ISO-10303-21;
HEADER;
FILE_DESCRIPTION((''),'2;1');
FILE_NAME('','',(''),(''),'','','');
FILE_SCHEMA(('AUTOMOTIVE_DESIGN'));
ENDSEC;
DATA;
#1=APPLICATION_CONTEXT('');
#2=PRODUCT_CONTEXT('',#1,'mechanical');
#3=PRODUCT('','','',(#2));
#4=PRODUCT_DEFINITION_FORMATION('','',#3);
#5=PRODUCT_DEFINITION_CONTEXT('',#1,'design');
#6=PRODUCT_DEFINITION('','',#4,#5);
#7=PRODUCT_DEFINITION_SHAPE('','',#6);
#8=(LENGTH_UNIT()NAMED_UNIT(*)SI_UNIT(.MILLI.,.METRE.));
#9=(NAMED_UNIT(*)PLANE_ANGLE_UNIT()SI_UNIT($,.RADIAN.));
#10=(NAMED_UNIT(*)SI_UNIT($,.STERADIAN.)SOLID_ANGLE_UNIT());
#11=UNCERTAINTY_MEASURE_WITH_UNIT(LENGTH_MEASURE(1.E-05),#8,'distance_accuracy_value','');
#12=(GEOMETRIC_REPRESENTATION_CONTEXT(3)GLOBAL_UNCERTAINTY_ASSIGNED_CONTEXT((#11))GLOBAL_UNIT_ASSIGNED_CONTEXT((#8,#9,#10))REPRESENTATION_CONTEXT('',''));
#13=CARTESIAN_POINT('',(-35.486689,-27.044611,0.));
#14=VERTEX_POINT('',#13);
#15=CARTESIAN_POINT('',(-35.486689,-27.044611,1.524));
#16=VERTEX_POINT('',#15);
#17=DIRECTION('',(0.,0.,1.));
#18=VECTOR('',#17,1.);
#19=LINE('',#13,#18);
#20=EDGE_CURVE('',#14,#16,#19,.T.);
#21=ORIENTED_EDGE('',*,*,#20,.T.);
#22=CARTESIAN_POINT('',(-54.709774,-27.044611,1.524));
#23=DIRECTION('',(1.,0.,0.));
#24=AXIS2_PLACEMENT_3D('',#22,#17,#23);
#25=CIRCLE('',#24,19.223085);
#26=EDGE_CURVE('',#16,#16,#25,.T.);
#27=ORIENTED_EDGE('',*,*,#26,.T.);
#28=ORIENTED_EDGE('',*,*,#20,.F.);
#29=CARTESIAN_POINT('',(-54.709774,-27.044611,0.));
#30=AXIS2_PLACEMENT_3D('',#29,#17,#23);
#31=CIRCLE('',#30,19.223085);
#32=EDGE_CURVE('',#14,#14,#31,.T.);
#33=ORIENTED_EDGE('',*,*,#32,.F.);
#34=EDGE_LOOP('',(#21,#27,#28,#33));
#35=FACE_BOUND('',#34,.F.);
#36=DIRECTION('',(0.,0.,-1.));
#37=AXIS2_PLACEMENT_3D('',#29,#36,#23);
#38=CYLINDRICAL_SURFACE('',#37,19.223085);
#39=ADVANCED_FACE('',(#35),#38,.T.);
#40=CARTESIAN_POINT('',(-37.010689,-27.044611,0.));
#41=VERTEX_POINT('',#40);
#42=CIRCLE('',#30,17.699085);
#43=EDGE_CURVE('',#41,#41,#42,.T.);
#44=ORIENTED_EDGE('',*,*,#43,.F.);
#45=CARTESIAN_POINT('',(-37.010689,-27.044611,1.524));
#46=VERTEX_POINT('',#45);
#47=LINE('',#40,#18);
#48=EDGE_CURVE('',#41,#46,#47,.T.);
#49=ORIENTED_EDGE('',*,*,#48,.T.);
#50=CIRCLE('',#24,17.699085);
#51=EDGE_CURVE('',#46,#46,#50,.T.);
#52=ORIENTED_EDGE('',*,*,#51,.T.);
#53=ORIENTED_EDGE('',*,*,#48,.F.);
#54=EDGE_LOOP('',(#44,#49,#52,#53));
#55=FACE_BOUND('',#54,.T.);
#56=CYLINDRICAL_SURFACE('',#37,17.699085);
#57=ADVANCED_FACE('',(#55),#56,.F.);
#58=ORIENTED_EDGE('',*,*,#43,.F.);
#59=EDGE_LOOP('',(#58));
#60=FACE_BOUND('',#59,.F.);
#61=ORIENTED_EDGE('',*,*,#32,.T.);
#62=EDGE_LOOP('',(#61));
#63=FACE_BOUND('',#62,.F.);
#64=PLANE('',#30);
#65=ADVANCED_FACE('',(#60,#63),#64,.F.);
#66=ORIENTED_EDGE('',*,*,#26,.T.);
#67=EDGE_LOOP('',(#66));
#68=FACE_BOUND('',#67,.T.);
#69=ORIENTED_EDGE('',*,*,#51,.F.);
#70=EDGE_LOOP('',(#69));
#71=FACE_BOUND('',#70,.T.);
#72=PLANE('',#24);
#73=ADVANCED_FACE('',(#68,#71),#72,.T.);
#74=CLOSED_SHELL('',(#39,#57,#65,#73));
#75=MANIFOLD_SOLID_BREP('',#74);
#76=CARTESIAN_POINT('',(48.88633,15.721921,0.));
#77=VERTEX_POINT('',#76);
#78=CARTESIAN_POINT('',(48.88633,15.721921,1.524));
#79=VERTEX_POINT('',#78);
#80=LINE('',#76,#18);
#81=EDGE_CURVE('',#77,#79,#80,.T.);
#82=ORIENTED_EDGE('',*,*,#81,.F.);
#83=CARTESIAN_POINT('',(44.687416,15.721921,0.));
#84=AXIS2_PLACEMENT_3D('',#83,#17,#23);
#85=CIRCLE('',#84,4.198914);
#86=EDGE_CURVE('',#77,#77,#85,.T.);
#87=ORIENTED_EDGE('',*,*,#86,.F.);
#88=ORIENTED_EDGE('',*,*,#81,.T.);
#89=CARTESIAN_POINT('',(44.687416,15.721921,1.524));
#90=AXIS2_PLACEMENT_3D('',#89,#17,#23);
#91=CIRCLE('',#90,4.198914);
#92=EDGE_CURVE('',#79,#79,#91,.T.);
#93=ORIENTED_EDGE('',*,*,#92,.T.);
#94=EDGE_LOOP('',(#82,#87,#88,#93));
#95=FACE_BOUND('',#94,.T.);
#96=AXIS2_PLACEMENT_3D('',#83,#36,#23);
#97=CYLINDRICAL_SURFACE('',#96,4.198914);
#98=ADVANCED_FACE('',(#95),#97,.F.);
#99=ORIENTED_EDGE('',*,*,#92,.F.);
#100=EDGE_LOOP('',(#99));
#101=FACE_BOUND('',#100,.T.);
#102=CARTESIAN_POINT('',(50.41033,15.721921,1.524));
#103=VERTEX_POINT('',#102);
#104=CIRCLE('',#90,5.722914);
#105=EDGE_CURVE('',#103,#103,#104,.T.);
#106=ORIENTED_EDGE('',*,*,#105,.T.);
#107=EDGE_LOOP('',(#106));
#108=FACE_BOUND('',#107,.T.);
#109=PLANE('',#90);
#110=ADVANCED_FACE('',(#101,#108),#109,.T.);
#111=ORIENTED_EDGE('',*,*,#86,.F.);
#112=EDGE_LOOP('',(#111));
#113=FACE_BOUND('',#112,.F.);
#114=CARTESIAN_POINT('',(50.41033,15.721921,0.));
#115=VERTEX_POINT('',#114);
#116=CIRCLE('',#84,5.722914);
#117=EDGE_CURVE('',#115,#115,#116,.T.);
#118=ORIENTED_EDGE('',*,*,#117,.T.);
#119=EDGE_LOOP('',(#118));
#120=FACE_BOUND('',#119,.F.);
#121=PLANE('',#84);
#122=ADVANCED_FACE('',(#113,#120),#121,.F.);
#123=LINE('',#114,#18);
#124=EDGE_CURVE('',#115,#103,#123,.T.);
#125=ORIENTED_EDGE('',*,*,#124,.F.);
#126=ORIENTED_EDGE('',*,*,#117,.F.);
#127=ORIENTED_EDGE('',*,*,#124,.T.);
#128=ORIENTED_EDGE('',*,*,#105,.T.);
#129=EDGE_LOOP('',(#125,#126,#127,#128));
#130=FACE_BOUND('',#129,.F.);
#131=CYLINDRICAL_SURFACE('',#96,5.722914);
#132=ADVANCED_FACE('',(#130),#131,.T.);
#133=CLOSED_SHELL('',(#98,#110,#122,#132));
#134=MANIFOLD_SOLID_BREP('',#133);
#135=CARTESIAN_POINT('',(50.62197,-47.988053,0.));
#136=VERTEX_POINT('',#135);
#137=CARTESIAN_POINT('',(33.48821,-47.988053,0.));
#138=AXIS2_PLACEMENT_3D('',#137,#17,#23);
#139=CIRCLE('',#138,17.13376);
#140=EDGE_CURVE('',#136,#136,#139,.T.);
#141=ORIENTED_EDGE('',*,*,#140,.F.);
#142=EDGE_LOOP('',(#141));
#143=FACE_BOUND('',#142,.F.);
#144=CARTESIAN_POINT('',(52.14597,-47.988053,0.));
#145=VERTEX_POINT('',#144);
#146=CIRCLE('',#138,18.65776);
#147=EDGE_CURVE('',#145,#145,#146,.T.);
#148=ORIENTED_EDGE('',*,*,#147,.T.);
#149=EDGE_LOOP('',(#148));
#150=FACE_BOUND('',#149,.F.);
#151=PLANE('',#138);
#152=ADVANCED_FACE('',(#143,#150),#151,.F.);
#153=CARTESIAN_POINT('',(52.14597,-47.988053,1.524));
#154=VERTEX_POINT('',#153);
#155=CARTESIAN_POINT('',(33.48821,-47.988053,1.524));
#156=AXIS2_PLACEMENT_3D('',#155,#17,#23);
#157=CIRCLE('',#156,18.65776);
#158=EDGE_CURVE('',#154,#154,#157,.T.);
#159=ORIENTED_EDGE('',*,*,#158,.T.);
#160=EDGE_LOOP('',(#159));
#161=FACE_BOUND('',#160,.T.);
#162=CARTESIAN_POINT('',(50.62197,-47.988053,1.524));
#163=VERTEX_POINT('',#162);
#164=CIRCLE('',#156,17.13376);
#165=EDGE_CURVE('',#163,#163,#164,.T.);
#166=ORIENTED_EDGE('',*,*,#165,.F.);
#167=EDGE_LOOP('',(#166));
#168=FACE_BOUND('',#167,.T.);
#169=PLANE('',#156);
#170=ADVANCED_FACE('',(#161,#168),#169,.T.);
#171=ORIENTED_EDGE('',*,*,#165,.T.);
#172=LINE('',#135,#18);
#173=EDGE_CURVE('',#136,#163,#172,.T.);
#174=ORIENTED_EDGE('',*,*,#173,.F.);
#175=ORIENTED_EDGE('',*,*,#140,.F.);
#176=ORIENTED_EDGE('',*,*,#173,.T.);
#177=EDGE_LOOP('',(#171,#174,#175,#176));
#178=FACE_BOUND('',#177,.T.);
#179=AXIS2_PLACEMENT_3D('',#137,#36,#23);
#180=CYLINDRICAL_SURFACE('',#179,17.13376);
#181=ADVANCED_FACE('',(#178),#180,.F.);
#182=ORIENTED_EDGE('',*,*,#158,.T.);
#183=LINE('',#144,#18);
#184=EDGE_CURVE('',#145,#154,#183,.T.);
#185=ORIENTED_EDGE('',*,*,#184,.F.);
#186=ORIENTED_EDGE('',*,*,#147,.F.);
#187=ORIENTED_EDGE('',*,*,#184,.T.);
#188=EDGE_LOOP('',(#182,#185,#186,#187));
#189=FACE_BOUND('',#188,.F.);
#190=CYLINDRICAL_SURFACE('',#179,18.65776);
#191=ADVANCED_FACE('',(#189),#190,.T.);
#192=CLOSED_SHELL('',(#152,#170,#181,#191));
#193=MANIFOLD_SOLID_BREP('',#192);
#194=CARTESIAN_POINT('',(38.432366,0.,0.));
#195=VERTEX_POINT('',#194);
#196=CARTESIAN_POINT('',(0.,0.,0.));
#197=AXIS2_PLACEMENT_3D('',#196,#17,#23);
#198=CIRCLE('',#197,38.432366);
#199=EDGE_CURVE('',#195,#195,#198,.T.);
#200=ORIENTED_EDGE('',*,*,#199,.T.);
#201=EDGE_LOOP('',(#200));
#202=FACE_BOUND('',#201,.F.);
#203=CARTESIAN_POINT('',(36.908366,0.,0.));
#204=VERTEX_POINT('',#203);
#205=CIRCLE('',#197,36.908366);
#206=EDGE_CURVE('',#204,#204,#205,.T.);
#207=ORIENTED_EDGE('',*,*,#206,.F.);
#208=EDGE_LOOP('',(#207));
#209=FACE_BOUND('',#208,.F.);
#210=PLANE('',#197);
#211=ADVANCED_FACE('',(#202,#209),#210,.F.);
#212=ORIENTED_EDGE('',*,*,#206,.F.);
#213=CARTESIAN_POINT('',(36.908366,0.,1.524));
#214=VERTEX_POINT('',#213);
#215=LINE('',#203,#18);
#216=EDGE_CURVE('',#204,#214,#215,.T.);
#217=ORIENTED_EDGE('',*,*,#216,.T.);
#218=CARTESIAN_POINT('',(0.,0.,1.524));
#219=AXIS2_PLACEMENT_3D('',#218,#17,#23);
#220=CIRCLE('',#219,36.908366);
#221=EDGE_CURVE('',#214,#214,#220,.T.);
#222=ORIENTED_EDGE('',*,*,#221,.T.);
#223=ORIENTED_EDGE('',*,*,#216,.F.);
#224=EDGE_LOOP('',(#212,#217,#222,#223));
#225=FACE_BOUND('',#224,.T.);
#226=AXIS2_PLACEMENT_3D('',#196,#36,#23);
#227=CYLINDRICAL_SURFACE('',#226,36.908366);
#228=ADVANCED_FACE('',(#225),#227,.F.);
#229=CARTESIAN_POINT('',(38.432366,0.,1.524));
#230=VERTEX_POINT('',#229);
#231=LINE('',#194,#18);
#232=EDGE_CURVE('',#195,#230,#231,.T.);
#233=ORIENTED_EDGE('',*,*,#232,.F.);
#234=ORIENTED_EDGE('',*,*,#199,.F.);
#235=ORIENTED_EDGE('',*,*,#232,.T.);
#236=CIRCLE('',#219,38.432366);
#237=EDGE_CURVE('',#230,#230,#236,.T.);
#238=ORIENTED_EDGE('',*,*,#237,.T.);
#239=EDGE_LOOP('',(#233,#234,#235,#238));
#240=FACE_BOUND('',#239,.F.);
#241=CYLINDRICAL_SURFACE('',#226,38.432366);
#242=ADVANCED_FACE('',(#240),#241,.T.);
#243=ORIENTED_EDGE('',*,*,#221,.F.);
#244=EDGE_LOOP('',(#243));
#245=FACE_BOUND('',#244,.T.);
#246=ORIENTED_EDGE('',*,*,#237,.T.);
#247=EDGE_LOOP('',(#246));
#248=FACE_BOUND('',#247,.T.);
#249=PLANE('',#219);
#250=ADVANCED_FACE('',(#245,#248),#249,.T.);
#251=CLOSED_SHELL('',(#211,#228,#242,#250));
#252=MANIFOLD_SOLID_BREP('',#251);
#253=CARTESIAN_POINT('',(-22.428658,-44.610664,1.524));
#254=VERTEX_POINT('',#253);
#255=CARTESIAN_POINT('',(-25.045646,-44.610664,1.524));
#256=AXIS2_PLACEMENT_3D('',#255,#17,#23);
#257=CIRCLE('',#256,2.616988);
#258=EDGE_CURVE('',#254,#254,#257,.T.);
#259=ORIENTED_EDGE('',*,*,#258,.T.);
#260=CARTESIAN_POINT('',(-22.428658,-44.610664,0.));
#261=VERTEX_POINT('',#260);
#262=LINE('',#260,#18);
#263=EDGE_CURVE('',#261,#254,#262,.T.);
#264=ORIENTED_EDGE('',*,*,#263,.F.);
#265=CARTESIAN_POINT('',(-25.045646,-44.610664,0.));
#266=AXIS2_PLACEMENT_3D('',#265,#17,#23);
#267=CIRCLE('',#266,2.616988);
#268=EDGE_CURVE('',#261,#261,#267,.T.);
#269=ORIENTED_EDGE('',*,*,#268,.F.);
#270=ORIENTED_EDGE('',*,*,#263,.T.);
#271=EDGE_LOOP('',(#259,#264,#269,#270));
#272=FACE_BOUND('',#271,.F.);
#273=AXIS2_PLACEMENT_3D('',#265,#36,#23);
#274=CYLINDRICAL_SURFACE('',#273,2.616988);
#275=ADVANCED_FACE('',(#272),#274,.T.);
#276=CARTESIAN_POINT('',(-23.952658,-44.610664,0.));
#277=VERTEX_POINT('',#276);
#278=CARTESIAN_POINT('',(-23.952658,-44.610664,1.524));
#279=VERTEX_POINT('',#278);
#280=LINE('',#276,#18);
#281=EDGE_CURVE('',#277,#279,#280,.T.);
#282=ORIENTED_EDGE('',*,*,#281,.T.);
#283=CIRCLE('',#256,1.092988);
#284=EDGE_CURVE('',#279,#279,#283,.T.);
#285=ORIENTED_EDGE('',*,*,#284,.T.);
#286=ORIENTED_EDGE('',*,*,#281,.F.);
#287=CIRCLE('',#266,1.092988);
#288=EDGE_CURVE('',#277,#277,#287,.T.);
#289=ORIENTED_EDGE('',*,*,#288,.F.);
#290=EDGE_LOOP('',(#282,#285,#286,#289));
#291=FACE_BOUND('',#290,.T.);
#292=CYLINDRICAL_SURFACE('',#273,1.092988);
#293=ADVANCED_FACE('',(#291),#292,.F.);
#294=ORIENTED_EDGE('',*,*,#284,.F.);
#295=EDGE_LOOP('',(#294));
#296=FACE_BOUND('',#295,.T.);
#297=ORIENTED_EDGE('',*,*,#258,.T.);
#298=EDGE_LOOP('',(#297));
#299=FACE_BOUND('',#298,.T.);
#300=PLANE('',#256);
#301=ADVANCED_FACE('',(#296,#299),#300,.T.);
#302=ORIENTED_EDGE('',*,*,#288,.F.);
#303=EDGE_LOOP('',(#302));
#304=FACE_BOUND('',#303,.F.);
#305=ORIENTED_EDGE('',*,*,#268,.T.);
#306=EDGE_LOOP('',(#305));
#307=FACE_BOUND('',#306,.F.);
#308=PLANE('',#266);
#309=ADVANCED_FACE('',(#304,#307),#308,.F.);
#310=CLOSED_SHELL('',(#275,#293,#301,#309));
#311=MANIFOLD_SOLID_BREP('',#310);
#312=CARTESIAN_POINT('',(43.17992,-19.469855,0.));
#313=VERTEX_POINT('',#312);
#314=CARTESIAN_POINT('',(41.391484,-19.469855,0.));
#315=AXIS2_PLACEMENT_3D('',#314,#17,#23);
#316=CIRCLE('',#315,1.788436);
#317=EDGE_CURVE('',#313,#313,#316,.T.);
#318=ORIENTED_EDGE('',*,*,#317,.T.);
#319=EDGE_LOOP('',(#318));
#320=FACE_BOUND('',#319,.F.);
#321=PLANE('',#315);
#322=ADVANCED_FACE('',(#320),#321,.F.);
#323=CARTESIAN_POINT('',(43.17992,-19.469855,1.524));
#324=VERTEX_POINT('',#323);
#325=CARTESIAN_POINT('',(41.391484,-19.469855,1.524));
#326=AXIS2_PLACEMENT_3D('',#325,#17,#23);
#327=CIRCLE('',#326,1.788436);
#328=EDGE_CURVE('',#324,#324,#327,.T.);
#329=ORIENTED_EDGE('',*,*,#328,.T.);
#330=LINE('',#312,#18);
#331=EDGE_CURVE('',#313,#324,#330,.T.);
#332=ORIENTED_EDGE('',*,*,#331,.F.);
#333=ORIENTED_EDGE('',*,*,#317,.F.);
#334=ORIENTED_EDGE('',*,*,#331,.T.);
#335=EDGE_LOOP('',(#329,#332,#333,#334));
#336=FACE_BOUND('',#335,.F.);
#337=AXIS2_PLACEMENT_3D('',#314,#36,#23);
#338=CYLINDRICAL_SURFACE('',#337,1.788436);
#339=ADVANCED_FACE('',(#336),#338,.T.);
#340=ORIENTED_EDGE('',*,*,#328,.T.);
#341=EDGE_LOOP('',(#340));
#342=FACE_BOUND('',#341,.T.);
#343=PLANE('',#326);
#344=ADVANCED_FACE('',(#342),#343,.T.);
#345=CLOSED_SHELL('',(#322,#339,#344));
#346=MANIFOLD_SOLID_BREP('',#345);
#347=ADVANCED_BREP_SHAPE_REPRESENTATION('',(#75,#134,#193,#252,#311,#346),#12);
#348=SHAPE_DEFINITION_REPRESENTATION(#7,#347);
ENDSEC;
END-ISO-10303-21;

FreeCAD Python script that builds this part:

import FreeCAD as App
import Part
import Sketcher
from FreeCAD import Vector
Q = App.Units.Quantity

doc = App.newDocument("Part")
body = doc.addObject("PartDesign::Body", "Body")
body.AllowCompound = True

sketch1 = body.newObject("Sketcher::SketchObject", "Sketch")
sketch1.AttachmentSupport = (doc.getObject("XY_Plane"), [""])
sketch1.MapMode = "FlatFace"
sketch1.addGeometry([
    Part.Circle(Vector(-25.045646, -44.610664, 0), Vector(0, 0, 1), 2.616988),
    Part.Circle(Vector(-25.045646, -44.610664, 0), Vector(0, 0, 1), 1.092988),
    Part.Circle(Vector(44.687416, 15.721921, 0), Vector(0, 0, 1), 5.722914),
    Part.Circle(Vector(44.687416, 15.721921, 0), Vector(0, 0, 1), 4.198914),
    Part.Circle(Vector(41.391484, -19.469855, 0), Vector(0, 0, 1), 1.788436),
    Part.Circle(Vector(0, 0, 0), Vector(0, 0, 1), 38.432366),
    Part.Circle(Vector(0, 0, 0), Vector(0, 0, 1), 36.908366),
    Part.Circle(Vector(-54.709774, -27.044611, 0), Vector(0, 0, 1), 19.223085),
    Part.Circle(Vector(-54.709774, -27.044611, 0), Vector(0, 0, 1), 17.699085),
    Part.Circle(Vector(33.48821, -47.988053, 0), Vector(0, 0, 1), 18.65776),
    Part.Circle(Vector(33.48821, -47.988053, 0), Vector(0, 0, 1), 17.13376),
], False)
sketch1.addConstraint([
    Sketcher.Constraint("Coincident", 5, 3, -1, 1),
    Sketcher.Constraint("Coincident", 6, 3, -1, 1),
    Sketcher.Constraint("Coincident", 1, 3, 0, 3),
    Sketcher.Constraint("Coincident", 3, 3, 2, 3),
    Sketcher.Constraint("Coincident", 8, 3, 7, 3),
    Sketcher.Constraint("Coincident", 10, 3, 9, 3),
    Sketcher.Constraint("Diameter", 4, Q("3.576872 mm")),
    Sketcher.Constraint("Diameter", 6, Q("73.816732 mm")),
    Sketcher.Constraint("Diameter", 7, Q("38.44617 mm")),
    Sketcher.Constraint("Diameter", 8, Q("35.39817 mm")),
    Sketcher.Constraint("Diameter", 9, Q("37.31552 mm")),
    Sketcher.Constraint("Diameter", 10, Q("34.26752 mm")),
    Sketcher.Constraint("Diameter", 0, Q("5.233976 mm")),
    Sketcher.Constraint("Diameter", 1, Q("2.185976 mm")),
    Sketcher.Constraint("Diameter", 2, Q("11.445828 mm")),
    Sketcher.Constraint("Diameter", 3, Q("8.397828 mm")),
    Sketcher.Constraint("Diameter", 5, Q("76.864732 mm")),
    Sketcher.Constraint("DistanceY", 9, 3, 4, 3, Q("28.518198 mm")),
    Sketcher.Constraint("DistanceY", -1, 1, 2, 3, Q("15.721921 mm")),
    Sketcher.Constraint("DistanceY", 7, 3, -1, 1, Q("27.044611 mm")),
    Sketcher.Constraint("DistanceX", -1, 1, 9, 3, Q("33.48821 mm")),
    Sketcher.Constraint("DistanceX", 0, 3, 4, 3, Q("66.43713 mm")),
    Sketcher.Constraint("DistanceY", 0, 3, 4, 3, Q("25.140809 mm")),
    Sketcher.Constraint("DistanceX", 7, 3, 0, 3, Q("29.664128 mm")),
    Sketcher.Constraint("DistanceX", 0, 3, -1, 1, Q("25.045646 mm")),
    Sketcher.Constraint("DistanceY", 0, 3, -1, 1, Q("44.610664 mm")),
    Sketcher.Constraint("DistanceX", -1, 1, 2, 3, Q("44.687416 mm")),
])
pad1 = body.newObject("PartDesign::Pad", "Pad")
pad1.Profile = sketch1
pad1.Length = Q("0.06 in")

doc.recompute()
